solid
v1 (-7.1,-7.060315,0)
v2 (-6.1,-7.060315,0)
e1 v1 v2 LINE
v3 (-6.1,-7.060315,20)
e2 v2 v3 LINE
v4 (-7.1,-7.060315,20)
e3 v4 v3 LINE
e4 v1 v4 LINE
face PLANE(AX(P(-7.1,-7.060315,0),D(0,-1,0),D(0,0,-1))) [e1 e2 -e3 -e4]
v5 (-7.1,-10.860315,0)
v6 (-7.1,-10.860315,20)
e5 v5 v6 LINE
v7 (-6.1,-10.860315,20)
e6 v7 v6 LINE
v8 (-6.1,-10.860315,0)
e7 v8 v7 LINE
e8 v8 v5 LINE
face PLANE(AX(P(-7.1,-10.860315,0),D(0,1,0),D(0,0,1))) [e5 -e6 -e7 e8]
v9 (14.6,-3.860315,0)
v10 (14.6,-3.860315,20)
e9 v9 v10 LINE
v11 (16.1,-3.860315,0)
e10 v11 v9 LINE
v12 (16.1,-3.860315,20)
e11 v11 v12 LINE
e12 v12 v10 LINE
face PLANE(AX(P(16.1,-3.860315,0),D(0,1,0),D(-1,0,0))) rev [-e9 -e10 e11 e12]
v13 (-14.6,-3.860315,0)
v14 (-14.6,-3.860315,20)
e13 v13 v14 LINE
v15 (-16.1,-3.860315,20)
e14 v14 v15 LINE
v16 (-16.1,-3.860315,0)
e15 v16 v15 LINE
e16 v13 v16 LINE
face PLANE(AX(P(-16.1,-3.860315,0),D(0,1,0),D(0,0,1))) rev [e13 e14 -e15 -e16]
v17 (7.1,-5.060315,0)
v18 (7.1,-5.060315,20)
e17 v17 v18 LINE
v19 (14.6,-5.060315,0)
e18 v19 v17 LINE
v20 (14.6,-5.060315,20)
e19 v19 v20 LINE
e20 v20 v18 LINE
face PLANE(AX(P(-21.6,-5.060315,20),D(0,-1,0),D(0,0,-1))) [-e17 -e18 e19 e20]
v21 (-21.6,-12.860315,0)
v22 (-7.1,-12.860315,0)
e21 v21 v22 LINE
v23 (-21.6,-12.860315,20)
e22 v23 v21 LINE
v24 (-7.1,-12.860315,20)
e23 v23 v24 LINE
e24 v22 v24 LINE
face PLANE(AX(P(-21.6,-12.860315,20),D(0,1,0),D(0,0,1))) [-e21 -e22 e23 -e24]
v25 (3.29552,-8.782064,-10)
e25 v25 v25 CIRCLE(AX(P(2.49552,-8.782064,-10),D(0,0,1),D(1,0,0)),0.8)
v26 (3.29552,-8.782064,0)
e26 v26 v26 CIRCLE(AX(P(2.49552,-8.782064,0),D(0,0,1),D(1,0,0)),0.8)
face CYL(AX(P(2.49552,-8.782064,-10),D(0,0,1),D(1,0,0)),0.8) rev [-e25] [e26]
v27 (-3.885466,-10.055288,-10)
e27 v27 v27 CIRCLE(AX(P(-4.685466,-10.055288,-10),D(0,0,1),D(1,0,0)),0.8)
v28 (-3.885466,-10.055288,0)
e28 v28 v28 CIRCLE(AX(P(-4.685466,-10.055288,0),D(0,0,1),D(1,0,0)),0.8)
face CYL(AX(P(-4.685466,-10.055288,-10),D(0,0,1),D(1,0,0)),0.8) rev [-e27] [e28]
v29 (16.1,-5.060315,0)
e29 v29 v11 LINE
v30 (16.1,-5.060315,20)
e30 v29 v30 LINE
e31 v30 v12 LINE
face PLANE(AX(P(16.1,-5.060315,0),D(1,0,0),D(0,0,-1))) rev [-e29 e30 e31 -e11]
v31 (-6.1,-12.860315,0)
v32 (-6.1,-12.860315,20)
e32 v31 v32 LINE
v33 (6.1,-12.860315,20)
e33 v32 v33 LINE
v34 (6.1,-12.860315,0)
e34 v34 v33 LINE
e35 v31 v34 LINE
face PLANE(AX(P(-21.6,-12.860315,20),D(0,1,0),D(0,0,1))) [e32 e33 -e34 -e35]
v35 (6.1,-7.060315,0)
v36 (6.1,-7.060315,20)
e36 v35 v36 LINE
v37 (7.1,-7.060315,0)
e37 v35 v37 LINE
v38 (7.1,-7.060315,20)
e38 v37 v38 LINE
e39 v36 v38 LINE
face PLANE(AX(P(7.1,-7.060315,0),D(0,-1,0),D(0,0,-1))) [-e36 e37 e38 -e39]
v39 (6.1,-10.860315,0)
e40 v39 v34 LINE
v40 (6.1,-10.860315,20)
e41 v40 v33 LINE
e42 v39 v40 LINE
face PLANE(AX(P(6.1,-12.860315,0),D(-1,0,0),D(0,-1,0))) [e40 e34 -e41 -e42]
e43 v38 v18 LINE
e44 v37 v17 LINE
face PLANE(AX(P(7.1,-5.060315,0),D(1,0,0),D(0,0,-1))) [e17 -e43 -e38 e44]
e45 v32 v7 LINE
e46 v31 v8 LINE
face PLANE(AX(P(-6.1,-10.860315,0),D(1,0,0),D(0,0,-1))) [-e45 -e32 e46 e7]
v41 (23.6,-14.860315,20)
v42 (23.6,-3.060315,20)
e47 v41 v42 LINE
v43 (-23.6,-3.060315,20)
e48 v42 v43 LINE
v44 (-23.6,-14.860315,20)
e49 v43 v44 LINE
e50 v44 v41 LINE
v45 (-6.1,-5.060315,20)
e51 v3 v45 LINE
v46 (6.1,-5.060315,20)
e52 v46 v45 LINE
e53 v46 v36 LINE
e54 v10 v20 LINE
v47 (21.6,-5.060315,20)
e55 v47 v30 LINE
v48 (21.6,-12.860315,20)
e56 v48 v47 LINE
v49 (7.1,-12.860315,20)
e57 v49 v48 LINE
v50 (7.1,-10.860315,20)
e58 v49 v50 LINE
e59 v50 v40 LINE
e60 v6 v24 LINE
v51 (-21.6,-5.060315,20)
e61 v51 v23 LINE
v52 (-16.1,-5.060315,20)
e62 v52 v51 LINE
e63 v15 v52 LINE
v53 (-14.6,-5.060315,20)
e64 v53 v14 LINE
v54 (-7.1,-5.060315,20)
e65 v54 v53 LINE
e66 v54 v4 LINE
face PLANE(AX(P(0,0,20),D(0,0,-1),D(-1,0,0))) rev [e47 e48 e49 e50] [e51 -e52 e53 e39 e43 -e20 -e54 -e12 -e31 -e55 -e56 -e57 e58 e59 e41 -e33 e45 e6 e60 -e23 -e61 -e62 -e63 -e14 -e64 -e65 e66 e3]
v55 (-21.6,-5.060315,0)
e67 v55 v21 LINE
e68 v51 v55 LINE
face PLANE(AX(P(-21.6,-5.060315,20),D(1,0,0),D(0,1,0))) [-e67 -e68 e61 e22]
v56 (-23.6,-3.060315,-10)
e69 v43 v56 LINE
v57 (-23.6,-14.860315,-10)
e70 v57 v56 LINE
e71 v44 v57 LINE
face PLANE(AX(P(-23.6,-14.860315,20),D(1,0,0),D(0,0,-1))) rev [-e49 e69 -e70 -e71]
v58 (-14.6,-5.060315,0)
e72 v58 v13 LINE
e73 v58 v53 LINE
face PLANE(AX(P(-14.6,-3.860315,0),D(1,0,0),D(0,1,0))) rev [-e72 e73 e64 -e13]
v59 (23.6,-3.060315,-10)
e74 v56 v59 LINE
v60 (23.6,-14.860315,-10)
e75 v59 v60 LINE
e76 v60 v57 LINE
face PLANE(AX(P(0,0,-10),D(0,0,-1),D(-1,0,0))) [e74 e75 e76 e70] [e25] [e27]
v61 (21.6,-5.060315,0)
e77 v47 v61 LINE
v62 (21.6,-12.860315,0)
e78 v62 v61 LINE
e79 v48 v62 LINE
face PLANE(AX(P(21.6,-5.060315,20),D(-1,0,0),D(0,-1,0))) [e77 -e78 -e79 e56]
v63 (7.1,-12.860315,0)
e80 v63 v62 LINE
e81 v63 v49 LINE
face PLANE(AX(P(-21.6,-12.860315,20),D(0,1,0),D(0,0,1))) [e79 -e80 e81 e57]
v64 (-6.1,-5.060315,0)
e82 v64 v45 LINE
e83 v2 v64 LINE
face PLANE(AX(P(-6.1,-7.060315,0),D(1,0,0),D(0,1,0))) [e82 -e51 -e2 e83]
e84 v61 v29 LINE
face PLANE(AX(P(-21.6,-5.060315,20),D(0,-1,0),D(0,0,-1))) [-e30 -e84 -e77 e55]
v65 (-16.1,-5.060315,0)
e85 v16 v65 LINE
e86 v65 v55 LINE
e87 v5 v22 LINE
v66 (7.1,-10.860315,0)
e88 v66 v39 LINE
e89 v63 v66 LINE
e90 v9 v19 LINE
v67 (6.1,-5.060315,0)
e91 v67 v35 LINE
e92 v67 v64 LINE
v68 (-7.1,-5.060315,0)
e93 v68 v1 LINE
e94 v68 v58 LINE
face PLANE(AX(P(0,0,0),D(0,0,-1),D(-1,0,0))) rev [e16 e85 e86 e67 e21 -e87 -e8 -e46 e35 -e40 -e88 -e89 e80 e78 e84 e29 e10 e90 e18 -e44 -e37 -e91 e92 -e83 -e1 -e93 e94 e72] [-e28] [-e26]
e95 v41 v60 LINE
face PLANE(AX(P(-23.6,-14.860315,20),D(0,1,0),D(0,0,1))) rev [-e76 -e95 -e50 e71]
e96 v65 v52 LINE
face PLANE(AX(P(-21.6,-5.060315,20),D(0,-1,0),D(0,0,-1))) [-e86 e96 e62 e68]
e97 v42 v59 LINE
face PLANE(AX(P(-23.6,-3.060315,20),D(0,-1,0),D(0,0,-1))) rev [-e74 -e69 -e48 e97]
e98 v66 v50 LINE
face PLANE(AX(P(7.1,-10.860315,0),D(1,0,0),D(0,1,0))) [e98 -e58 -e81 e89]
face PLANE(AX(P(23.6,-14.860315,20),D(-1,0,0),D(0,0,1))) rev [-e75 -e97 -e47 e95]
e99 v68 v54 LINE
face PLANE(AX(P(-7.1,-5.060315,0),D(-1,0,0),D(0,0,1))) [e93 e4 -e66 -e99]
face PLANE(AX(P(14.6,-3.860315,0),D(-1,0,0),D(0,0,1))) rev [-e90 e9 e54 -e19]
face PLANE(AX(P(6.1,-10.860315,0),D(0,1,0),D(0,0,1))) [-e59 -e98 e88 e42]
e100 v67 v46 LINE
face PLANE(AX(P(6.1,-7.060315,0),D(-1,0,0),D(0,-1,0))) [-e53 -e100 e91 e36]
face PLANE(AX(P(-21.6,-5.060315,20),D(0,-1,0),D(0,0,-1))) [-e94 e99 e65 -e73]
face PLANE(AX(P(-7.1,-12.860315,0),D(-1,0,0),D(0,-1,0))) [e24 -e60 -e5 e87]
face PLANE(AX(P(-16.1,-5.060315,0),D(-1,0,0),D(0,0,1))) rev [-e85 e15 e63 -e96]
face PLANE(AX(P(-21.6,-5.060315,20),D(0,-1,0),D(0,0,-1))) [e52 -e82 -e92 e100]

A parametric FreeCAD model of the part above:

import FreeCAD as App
import Part
import Sketcher

V = App.Vector
Q = App.Units.Quantity

doc = App.newDocument("Part")
body = doc.addObject("PartDesign::Body", "Body")

sketch1 = body.newObject("Sketcher::SketchObject", "Sketch")
sketch1.AttachmentSupport = (doc.getObject("XY_Plane"), [""])
sketch1.MapMode = "FlatFace"
sketch1.addGeometry([
    Part.LineSegment(V(-24, -3, 0), V(-24, -15, 0)),
    Part.LineSegment(V(-24, -15, 0), V(24, -15, 0)),
    Part.LineSegment(V(24, -15, 0), V(24, -3, 0)),
    Part.LineSegment(V(24, -3, 0), V(-24, -3, 0)),
    Part.LineSegment(V(22, -13, 0), V(-22, -13, 0)),
    Part.LineSegment(V(-22, -13, 0), V(-22, -5, 0)),
    Part.LineSegment(V(-22, -5, 0), V(22, -5, 0)),
    Part.LineSegment(V(22, -5, 0), V(22, -13, 0)),
], False)
sketch1.addConstraint([
    Sketcher.Constraint("Coincident", 0, 2, 1, 1),
    Sketcher.Constraint("Coincident", 1, 2, 2, 1),
    Sketcher.Constraint("Coincident", 2, 2, 3, 1),
    Sketcher.Constraint("Coincident", 3, 2, 0, 1),
    Sketcher.Constraint("Coincident", 4, 2, 5, 1),
    Sketcher.Constraint("Coincident", 5, 2, 6, 1),
    Sketcher.Constraint("Coincident", 6, 2, 7, 1),
    Sketcher.Constraint("Coincident", 7, 2, 4, 1),
    Sketcher.Constraint("Vertical", 0),
    Sketcher.Constraint("Horizontal", 1),
    Sketcher.Constraint("Vertical", 2),
    Sketcher.Constraint("Horizontal", 3),
    Sketcher.Constraint("Horizontal", 4),
    Sketcher.Constraint("Vertical", 5),
    Sketcher.Constraint("Horizontal", 6),
    Sketcher.Constraint("Vertical", 7),
    Sketcher.Constraint("DistanceX", 1, 1, 1, 2, Q("47.2 mm")),
    Sketcher.Constraint("DistanceX", 4, 2, 4, 1, Q("43.2 mm")),
    Sketcher.Constraint("DistanceY", 0, 2, 0, 1, Q("11.8 mm")),
    Sketcher.Constraint("DistanceY", 5, 1, 5, 2, Q("7.8 mm")),
    Sketcher.Constraint("DistanceX", 0, 2, 4, 2, Q("2 mm")),
    Sketcher.Constraint("DistanceY", 0, 2, 4, 2, Q("2 mm")),
    Sketcher.Constraint("DistanceX", 0, 2, -1, 1, Q("23.6 mm")),
    Sketcher.Constraint("DistanceY", 0, 2, -1, 1, Q("14.860315 mm")),
])
pad1 = body.newObject("PartDesign::Pad", "Pad")
pad1.Profile = sketch1
pad1.Length = 20

sketch2 = body.newObject("Sketcher::SketchObject", "Sketch001")
sketch2.AttachmentSupport = (doc.getObject("XY_Plane"), [""])
sketch2.MapMode = "FlatFace"
sketch2.AttachmentOffset = App.Placement(V(0, 0, 20), App.Rotation())
sketch2.addGeometry([
    Part.LineSegment(V(-16.1, -3.9, 0), V(-16.1, -5.1, 0)),
    Part.LineSegment(V(-16.1, -5.1, 0), V(-14.6, -5.1, 0)),
    Part.LineSegment(V(-14.6, -5.1, 0), V(-14.6, -3.9, 0)),
    Part.LineSegment(V(-14.6, -3.9, 0), V(-16.1, -3.9, 0)),
    Part.LineSegment(V(14.6, -3.9, 0), V(14.6, -5.1, 0)),
    Part.LineSegment(V(14.6, -5.1, 0), V(16.1, -5.1, 0)),
    Part.LineSegment(V(16.1, -5.1, 0), V(16.1, -3.9, 0)),
    Part.LineSegment(V(16.1, -3.9, 0), V(14.6, -3.9, 0)),
], False)
sketch2.addConstraint([
    Sketcher.Constraint("Coincident", 0, 2, 1, 1),
    Sketcher.Constraint("Coincident", 1, 2, 2, 1),
    Sketcher.Constraint("Coincident", 2, 2, 3, 1),
    Sketcher.Constraint("Coincident", 3, 2, 0, 1),
    Sketcher.Constraint("Coincident", 4, 2, 5, 1),
    Sketcher.Constraint("Coincident", 5, 2, 6, 1),
    Sketcher.Constraint("Coincident", 6, 2, 7, 1),
    Sketcher.Constraint("Coincident", 7, 2, 4, 1),
    Sketcher.Constraint("Vertical", 0),
    Sketcher.Constraint("Horizontal", 1),
    Sketcher.Constraint("Vertical", 2),
    Sketcher.Constraint("Horizontal", 3),
    Sketcher.Constraint("Vertical", 4),
    Sketcher.Constraint("Horizontal", 5),
    Sketcher.Constraint("Vertical", 6),
    Sketcher.Constraint("Horizontal", 7),
    Sketcher.Constraint("Symmetric", 1, 2, 4, 2, -2),
    Sketcher.Constraint("Symmetric", 3, 2, 6, 2, -2),
    Sketcher.Constraint("DistanceX", 1, 1, 1, 2, Q("1.5 mm")),
    Sketcher.Constraint("DistanceY", 0, 2, 0, 1, Q("1.2 mm")),
    Sketcher.Constraint("DistanceX", 0, 2, -1, 1, Q("16.1 mm")),
    Sketcher.Constraint("DistanceY", 0, 2, -1, 1, Q("5.060315 mm")),
])
pocket1 = body.newObject("PartDesign::Pocket", "Pocket")
pocket1.Profile = sketch2
pocket1.Length = 20
body2 = doc.addObject("PartDesign::Body", "Body001")

sketch3 = body2.newObject("Sketcher::SketchObject", "Sketch002")
sketch3.AttachmentSupport = (doc.getObject("XY_Plane001"), [""])
sketch3.MapMode = "FlatFace"
sketch3.AttachmentOffset = App.Placement(V(0, 0, 20), App.Rotation())
sketch3.addGeometry([
    Part.LineSegment(V(-7.1, -5.1, 0), V(-7.1, -7.1, 0)),
    Part.LineSegment(V(-7.1, -7.1, 0), V(-6.1, -7.1, 0)),
    Part.LineSegment(V(-6.1, -7.1, 0), V(-6.1, -5.1, 0)),
    Part.LineSegment(V(-6.1, -5.1, 0), V(-7.1, -5.1, 0)),
], False)
sketch3.addConstraint([
    Sketcher.Constraint("Coincident", 0, 2, 1, 1),
    Sketcher.Constraint("Coincident", 1, 2, 2, 1),
    Sketcher.Constraint("Coincident", 2, 2, 3, 1),
    Sketcher.Constraint("Coincident", 3, 2, 0, 1),
    Sketcher.Constraint("Vertical", 0),
    Sketcher.Constraint("Horizontal", 1),
    Sketcher.Constraint("Vertical", 2),
    Sketcher.Constraint("Horizontal", 3),
    Sketcher.Constraint("DistanceX", 1, 1, 1, 2, Q("1 mm")),
    Sketcher.Constraint("DistanceY", 0, 2, 0, 1, Q("2 mm")),
    Sketcher.Constraint("DistanceX", 0, 2, -1, 1, Q("7.1 mm")),
    Sketcher.Constraint("DistanceY", 0, 2, -1, 1, Q("7.060315 mm")),
])
pad2 = body2.newObject("PartDesign::Pad", "Pad001")
pad2.Profile = sketch3
pad2.Length = 20
pad2.Reversed = True
body3 = doc.addObject("PartDesign::Body", "Body002")

sketch4 = body3.newObject("Sketcher::SketchObject", "Sketch003")
sketch4.AttachmentSupport = (doc.getObject("XY_Plane002"), [""])
sketch4.MapMode = "FlatFace"
sketch4.AttachmentOffset = App.Placement(V(0, 0, 20), App.Rotation())
sketch4.addGeometry([
    Part.LineSegment(V(6.1, -5.1, 0), V(6.1, -7.1, 0)),
    Part.LineSegment(V(6.1, -7.1, 0), V(7.1, -7.1, 0)),
    Part.LineSegment(V(7.1, -7.1, 0), V(7.1, -5.1, 0)),
    Part.LineSegment(V(7.1, -5.1, 0), V(6.1, -5.1, 0)),
], False)
sketch4.addConstraint([
    Sketcher.Constraint("Coincident", 0, 2, 1, 1),
    Sketcher.Constraint("Coincident", 1, 2, 2, 1),
    Sketcher.Constraint("Coincident", 2, 2, 3, 1),
    Sketcher.Constraint("Coincident", 3, 2, 0, 1),
    Sketcher.Constraint("Vertical", 0),
    Sketcher.Constraint("Horizontal", 1),
    Sketcher.Constraint("Vertical", 2),
    Sketcher.Constraint("Horizontal", 3),
    Sketcher.Constraint("DistanceX", 1, 1, 1, 2, Q("1 mm")),
    Sketcher.Constraint("DistanceY", 0, 2, 0, 1, Q("2 mm")),
    Sketcher.Constraint("DistanceX", -1, 1, 0, 2, Q("6.1 mm")),
    Sketcher.Constraint("DistanceY", 0, 2, -1, 1, Q("7.060315 mm")),
])
pad3 = body3.newObject("PartDesign::Pad", "Pad002")
pad3.Profile = sketch4
pad3.Length = 20
pad3.Reversed = True
body4 = doc.addObject("PartDesign::Body", "Body003")

sketch5 = body4.newObject("Sketcher::SketchObject", "Sketch004")
sketch5.AttachmentSupport = (doc.getObject("XY_Plane003"), [""])
sketch5.MapMode = "FlatFace"
sketch5.AttachmentOffset = App.Placement(V(0, 0, 20), App.Rotation())
sketch5.addGeometry([
    Part.LineSegment(V(-7.1, -10.9, 0), V(-7.1, -12.9, 0)),
    Part.LineSegment(V(-7.1, -12.9, 0), V(-6.1, -12.9, 0)),
    Part.LineSegment(V(-6.1, -12.9, 0), V(-6.1, -10.9, 0)),
    Part.LineSegment(V(-6.1, -10.9, 0), V(-7.1, -10.9, 0)),
], False)
sketch5.addConstraint([
    Sketcher.Constraint("Coincident", 0, 2, 1, 1),
    Sketcher.Constraint("Coincident", 1, 2, 2, 1),
    Sketcher.Constraint("Coincident", 2, 2, 3, 1),
    Sketcher.Constraint("Coincident", 3, 2, 0, 1),
    Sketcher.Constraint("Vertical", 0),
    Sketcher.Constraint("Horizontal", 1),
    Sketcher.Constraint("Vertical", 2),
    Sketcher.Constraint("Horizontal", 3),
    Sketcher.Constraint("DistanceX", 1, 1, 1, 2, Q("1 mm")),
    Sketcher.Constraint("DistanceY", 0, 2, 0, 1, Q("2 mm")),
    Sketcher.Constraint("DistanceX", 0, 2, -1, 1, Q("7.1 mm")),
    Sketcher.Constraint("DistanceY", 0, 2, -1, 1, Q("12.860315 mm")),
])
pad4 = body4.newObject("PartDesign::Pad", "Pad003")
pad4.Profile = sketch5
pad4.Length = 20
pad4.Reversed = True
body5 = doc.addObject("PartDesign::Body", "Body004")

sketch6 = body5.newObject("Sketcher::SketchObject", "Sketch005")
sketch6.AttachmentSupport = (doc.getObject("XY_Plane004"), [""])
sketch6.MapMode = "FlatFace"
sketch6.AttachmentOffset = App.Placement(V(0, 0, 20), App.Rotation())
sketch6.addGeometry([
    Part.LineSegment(V(6.1, -10.9, 0), V(6.1, -12.9, 0)),
    Part.LineSegment(V(6.1, -12.9, 0), V(7.1, -12.9, 0)),
    Part.LineSegment(V(7.1, -12.9, 0), V(7.1, -10.9, 0)),
    Part.LineSegment(V(7.1, -10.9, 0), V(6.1, -10.9, 0)),
], False)
sketch6.addConstraint([
    Sketcher.Constraint("Coincident", 0, 2, 1, 1),
    Sketcher.Constraint("Coincident", 1, 2, 2, 1),
    Sketcher.Constraint("Coincident", 2, 2, 3, 1),
    Sketcher.Constraint("Coincident", 3, 2, 0, 1),
    Sketcher.Constraint("Vertical", 0),
    Sketcher.Constraint("Horizontal", 1),
    Sketcher.Constraint("Vertical", 2),
    Sketcher.Constraint("Horizontal", 3),
    Sketcher.Constraint("DistanceX", 1, 1, 1, 2, Q("1 mm")),
    Sketcher.Constraint("DistanceY", 0, 2, 0, 1, Q("2 mm")),
    Sketcher.Constraint("DistanceX", -1, 1, 0, 2, Q("6.1 mm")),
    Sketcher.Constraint("DistanceY", 0, 2, -1, 1, Q("12.860315 mm")),
])
pad5 = body5.newObject("PartDesign::Pad", "Pad004")
pad5.Profile = sketch6
pad5.Length = 20
pad5.Reversed = True
doc.recompute()

boolean = body.newObject("PartDesign::Boolean", "Boolean")
boolean.Type = "Fuse"
boolean.addObjects([body2])
doc.recompute()

boolean2 = body.newObject("PartDesign::Boolean", "Boolean001")
boolean2.Type = "Fuse"
boolean2.addObjects([body3])
doc.recompute()

boolean3 = body.newObject("PartDesign::Boolean", "Boolean002")
boolean3.Type = "Fuse"
boolean3.addObjects([body4])
doc.recompute()

boolean4 = body.newObject("PartDesign::Boolean", "Boolean003")
boolean4.Type = "Fuse"
boolean4.addObjects([body5])

sketch7 = body.newObject("Sketcher::SketchObject", "Sketch006")
sketch7.AttachmentSupport = (doc.getObject("XY_Plane"), [""])
sketch7.MapMode = "FlatFace"
sketch7.addGeometry([
    Part.LineSegment(V(24, -3, 0), V(24, -15, 0)),
    Part.LineSegment(V(24, -15, 0), V(-24, -15, 0)),
    Part.LineSegment(V(-24, -15, 0), V(-24, -3, 0)),
    Part.LineSegment(V(-24, -3, 0), V(24, -3, 0)),
], False)
sketch7.addConstraint([
    Sketcher.Constraint("Coincident", 0, 2, 1, 1),
    Sketcher.Constraint("Coincident", 1, 2, 2, 1),
    Sketcher.Constraint("Coincident", 2, 2, 3, 1),
    Sketcher.Constraint("Coincident", 3, 2, 0, 1),
    Sketcher.Constraint("Vertical", 0),
    Sketcher.Constraint("Horizontal", 1),
    Sketcher.Constraint("Vertical", 2),
    Sketcher.Constraint("Horizontal", 3),
    Sketcher.Constraint("DistanceX", 1, 2, 1, 1, Q("47.2 mm")),
    Sketcher.Constraint("DistanceY", 0, 2, 0, 1, Q("11.8 mm")),
    Sketcher.Constraint("DistanceX", -1, 1, 0, 2, Q("23.6 mm")),
    Sketcher.Constraint("DistanceY", 0, 2, -1, 1, Q("14.860315 mm")),
])
pad6 = body.newObject("PartDesign::Pad", "Pad005")
pad6.Profile = sketch7
pad6.Length = 10
pad6.Reversed = True

sketch8 = body.newObject("Sketcher::SketchObject", "Sketch007")
sketch8.AttachmentSupport = (doc.getObject("XY_Plane"), [""])
sketch8.MapMode = "FlatFace"
sketch8.addGeometry([
    Part.Circle(V(-4.7, -10.1, 0), V(0, 0, 1), 0.8),
    Part.Circle(V(2.5, -8.8, 0), V(0, 0, 1), 0.8),
], False)
sketch8.addConstraint([
    Sketcher.Constraint("Equal", 0, 1),
    Sketcher.Constraint("Diameter", 0, Q("1.6 mm")),
    Sketcher.Constraint("DistanceY", 0, 3, -1, 1, Q("10.055288 mm")),
    Sketcher.Constraint("DistanceX", -1, 1, 1, 3, Q("2.49552 mm")),
    Sketcher.Constraint("DistanceX", 0, 3, -1, 1, Q("4.685466 mm")),
    Sketcher.Constraint("DistanceY", 1, 3, -1, 1, Q("8.782064 mm")),
])
pocket2 = body.newObject("PartDesign::Pocket", "Pocket001")
pocket2.Profile = sketch8
pocket2.Length = 10

doc.recompute()
